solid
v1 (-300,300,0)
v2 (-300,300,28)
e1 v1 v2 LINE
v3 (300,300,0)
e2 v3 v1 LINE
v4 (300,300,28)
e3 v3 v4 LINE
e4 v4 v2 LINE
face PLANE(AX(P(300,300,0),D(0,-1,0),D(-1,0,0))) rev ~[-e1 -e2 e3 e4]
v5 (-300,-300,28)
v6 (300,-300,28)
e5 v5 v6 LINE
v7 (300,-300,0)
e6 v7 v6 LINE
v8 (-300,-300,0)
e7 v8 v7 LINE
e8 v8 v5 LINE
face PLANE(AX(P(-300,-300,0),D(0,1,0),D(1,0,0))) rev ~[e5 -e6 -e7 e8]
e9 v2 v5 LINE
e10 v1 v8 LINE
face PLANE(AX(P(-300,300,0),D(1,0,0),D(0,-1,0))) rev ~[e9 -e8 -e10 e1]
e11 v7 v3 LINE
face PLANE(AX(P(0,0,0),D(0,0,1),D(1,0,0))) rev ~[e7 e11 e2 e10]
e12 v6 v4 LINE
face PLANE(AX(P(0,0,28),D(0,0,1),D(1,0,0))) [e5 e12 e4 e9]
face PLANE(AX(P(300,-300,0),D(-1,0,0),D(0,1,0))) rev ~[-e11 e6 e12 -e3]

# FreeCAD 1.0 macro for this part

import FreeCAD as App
import Part
import Sketcher

V = App.Vector
Q = App.Units.Quantity

doc = App.newDocument("Part")
body = doc.addObject("PartDesign::Body", "Body")

sketch1 = body.newObject("Sketcher::SketchObject", "Sketch")
sketch1.AttachmentSupport = (doc.getObject("XY_Plane"), [""])
sketch1.MapMode = "FlatFace"
sketch1.addGeometry([
    Part.LineSegment(V(-300, 300, 0), V(-300, -300, 0)),
    Part.LineSegment(V(-300, -300, 0), V(300, -300, 0)),
    Part.LineSegment(V(300, -300, 0), V(300, 300, 0)),
    Part.LineSegment(V(300, 300, 0), V(-300, 300, 0)),
], False)
sketch1.addConstraint([
    Sketcher.Constraint("Coincident", 0, 2, 1, 1),
    Sketcher.Constraint("Coincident", 1, 2, 2, 1),
    Sketcher.Constraint("Coincident", 2, 2, 3, 1),
    Sketcher.Constraint("Coincident", 3, 2, 0, 1),
    Sketcher.Constraint("Vertical", 0),
    Sketcher.Constraint("Horizontal", 1),
    Sketcher.Constraint("Vertical", 2),
    Sketcher.Constraint("Horizontal", 3),
    Sketcher.Constraint("Symmetric", 0, 2, 2, 2, -1, 1),
    Sketcher.Constraint("Equal", 3, 0),
    Sketcher.Constraint("DistanceX", 1, 1, 1, 2, Q("600 mm")),
])
pad1 = body.newObject("PartDesign::Pad", "Pad")
pad1.Profile = sketch1
pad1.Length = 28

doc.recompute()
